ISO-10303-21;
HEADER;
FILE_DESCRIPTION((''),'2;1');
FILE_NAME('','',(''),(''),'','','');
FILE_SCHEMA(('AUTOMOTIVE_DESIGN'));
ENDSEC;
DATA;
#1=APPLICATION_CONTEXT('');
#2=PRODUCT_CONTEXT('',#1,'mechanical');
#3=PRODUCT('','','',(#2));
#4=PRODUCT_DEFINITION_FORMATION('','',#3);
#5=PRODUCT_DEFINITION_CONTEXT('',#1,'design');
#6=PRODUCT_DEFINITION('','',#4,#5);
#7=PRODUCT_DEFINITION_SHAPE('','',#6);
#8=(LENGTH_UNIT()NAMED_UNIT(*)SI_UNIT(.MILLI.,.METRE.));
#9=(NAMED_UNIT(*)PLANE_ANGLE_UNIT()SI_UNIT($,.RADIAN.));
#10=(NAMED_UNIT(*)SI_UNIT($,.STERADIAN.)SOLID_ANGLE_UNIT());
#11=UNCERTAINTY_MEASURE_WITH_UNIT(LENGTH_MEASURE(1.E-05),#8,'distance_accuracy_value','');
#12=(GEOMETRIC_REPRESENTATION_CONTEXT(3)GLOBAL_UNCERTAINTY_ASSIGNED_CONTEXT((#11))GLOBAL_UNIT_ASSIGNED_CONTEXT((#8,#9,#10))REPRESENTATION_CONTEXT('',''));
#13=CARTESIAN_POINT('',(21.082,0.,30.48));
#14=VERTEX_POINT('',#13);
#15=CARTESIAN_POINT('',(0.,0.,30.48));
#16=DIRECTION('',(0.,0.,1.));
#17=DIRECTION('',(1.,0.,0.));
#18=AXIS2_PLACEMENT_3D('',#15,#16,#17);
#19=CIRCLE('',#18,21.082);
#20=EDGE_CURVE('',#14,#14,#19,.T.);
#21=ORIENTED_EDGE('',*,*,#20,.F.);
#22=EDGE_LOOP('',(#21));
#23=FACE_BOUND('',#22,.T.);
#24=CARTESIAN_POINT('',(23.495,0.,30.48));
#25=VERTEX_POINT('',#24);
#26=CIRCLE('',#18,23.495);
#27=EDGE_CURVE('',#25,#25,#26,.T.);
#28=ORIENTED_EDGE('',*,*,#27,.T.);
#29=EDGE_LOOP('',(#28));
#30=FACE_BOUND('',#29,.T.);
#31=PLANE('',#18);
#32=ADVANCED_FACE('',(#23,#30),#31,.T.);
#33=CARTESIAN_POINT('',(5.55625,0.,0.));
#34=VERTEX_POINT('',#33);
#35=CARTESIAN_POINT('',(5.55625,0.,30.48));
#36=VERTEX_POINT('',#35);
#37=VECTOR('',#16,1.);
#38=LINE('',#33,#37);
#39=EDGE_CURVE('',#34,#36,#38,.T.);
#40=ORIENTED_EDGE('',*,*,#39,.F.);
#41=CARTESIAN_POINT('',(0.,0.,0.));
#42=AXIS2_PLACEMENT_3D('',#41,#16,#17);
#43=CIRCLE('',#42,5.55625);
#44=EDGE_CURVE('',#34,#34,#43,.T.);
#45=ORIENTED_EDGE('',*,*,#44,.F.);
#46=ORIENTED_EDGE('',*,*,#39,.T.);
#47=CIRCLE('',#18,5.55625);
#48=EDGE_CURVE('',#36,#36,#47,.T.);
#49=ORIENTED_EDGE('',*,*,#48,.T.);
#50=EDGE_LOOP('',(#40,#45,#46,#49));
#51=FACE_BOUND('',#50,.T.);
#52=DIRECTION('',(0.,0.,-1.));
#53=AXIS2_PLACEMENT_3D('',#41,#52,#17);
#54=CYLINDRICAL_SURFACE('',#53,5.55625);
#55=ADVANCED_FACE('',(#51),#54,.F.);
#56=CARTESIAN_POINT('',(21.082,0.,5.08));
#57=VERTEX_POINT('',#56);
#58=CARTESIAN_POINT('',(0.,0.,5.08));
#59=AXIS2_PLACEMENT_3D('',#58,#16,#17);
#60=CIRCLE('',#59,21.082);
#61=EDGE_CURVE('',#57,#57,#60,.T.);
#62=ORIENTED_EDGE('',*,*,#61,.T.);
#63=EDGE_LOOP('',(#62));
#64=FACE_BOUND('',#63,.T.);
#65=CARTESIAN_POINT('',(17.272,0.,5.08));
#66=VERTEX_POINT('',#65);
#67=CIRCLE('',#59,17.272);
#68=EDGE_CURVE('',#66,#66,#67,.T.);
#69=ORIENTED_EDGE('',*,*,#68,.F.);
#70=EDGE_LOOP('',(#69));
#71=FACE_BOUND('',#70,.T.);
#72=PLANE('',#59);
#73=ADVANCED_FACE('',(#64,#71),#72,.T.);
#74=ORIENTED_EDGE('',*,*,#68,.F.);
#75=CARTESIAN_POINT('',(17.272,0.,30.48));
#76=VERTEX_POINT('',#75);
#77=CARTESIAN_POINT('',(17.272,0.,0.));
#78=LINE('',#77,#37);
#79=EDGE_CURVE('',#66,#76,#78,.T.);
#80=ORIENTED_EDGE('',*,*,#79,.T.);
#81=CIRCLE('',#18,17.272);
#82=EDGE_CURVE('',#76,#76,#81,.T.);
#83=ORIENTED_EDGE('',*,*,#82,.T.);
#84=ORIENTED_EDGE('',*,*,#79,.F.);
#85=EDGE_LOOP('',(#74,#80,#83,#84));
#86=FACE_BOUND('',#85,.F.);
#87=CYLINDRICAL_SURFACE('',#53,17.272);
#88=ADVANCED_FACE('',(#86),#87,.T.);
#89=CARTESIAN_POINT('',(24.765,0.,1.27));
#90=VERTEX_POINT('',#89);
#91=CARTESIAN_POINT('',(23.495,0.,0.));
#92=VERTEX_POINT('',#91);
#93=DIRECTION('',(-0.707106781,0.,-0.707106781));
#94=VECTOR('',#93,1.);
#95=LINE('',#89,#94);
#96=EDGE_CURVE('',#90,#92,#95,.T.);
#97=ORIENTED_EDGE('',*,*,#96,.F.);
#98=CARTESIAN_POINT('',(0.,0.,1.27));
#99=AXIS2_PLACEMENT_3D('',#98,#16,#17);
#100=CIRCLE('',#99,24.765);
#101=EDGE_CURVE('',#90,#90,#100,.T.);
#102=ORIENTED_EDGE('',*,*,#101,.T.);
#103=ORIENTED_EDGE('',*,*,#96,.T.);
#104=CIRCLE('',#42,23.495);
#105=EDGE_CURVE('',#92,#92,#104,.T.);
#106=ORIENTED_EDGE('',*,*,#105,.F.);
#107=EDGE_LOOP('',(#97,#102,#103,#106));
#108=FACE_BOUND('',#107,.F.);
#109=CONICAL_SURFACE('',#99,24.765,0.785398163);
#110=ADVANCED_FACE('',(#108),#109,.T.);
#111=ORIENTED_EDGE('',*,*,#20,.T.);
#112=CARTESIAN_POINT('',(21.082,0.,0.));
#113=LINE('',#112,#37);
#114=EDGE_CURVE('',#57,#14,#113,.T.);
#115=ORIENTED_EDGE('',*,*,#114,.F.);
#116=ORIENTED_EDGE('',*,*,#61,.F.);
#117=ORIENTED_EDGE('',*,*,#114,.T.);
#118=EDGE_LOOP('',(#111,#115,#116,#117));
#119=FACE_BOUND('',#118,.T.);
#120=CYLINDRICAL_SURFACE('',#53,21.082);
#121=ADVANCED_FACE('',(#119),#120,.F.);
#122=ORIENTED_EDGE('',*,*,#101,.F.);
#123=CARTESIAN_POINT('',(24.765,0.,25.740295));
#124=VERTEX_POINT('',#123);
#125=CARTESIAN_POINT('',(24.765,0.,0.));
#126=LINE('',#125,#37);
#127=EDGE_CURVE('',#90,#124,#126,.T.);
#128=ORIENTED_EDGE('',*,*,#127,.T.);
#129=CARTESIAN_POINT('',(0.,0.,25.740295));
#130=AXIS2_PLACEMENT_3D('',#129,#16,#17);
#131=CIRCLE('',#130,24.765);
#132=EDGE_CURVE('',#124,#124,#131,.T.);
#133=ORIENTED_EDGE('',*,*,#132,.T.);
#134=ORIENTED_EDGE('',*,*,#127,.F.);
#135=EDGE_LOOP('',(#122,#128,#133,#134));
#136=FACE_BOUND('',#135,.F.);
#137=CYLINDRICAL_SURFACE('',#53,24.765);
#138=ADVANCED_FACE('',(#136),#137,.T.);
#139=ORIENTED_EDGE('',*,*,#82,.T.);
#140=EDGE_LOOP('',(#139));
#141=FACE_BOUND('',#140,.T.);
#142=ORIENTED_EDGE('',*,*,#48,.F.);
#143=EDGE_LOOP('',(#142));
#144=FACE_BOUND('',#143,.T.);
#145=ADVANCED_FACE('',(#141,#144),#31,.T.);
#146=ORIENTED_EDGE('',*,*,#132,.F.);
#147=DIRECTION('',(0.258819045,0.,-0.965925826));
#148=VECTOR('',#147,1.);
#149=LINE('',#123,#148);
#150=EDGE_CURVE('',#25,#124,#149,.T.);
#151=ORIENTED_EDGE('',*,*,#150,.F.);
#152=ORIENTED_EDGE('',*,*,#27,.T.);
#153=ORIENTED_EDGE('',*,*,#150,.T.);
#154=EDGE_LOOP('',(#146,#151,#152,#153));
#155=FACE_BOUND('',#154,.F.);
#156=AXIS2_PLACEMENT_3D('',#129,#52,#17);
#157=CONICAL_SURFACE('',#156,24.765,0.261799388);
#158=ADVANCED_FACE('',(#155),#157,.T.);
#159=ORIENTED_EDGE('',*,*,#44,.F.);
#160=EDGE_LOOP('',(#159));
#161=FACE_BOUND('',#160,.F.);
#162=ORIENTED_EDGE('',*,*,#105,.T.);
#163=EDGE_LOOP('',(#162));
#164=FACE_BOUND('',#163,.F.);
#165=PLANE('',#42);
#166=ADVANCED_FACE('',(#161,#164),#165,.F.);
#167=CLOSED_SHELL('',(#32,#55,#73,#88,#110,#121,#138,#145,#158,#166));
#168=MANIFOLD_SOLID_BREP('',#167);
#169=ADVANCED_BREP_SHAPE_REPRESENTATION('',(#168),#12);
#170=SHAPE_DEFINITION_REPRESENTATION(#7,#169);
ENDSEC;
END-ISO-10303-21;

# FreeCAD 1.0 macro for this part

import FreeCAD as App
import Part
import Sketcher

V = App.Vector
Q = App.Units.Quantity


def edges_at(feature, points):
    """Names of the edges that pass closest to the given points."""
    edges = feature.Shape.Edges
    near = lambda p: min(range(len(edges)), key=lambda i: edges[i].distToShape(Part.Vertex(*p))[0])
    return sorted({f"Edge{near(p) + 1}" for p in points})

doc = App.newDocument("Part")
params = doc.addObject("Spreadsheet::Sheet", "Params")
for row, (alias, value) in enumerate([
    ("sketch1_diameter", "1.95 in"),
    ("sketch1_diameter2", "1.66 in"),
    ("pad1_length", "1.2 in"),
    ("sketch2_diameter", "1.36 in"),
    ("sketch2_diameter2", "0.4375 in"),
    ("pad2_length", "1.2 in"),
    ("sketch3_diameter", "1.66 in"),
    ("sketch3_diameter2", "1.36 in"),
    ("pad3_length", "0.2 in"),
    ("chamfer_size", "0.05 in"),
    ("chamfer_size2", "4.739705 mm"),
    ("chamfer2_size", "0.05 in"),
], start=1):
    params.set(f"A{row}", alias)
    params.set(f"B{row}", "=" + value)
    params.setAlias(f"B{row}", alias)

body = doc.addObject("PartDesign::Body", "Body")

sketch1 = body.newObject("Sketcher::SketchObject", "Sketch")
sketch1.AttachmentSupport = (doc.getObject("XY_Plane"), [""])
sketch1.MapMode = "FlatFace"
sketch1.addGeometry(Part.Circle(V(0, 0, 0), V(0, 0, 1), 25), False)
sketch1.addGeometry(Part.Circle(V(0, 0, 0), V(0, 0, 1), 21), False)
sketch1.addConstraint(Sketcher.Constraint("Coincident", 0, 3, -1, 1))
sketch1.addConstraint(Sketcher.Constraint("Coincident", 1, 3, -1, 1))
sketch1.addConstraint(Sketcher.Constraint("Diameter", 0, Q("1.95 in")))
sketch1.addConstraint(Sketcher.Constraint("Diameter", 1, Q("1.66 in")))
sketch1.setExpression("Constraints[2]", "Params.sketch1_diameter")
sketch1.setExpression("Constraints[3]", "Params.sketch1_diameter2")
pad1 = body.newObject("PartDesign::Pad", "Pad")
pad1.Profile = sketch1
pad1.setExpression("Length", "Params.pad1_length")
body2 = doc.addObject("PartDesign::Body", "Body001")

sketch2 = body2.newObject("Sketcher::SketchObject", "Sketch001")
sketch2.AttachmentSupport = (doc.getObject("XY_Plane001"), [""])
sketch2.MapMode = "FlatFace"
sketch2.addGeometry(Part.Circle(V(0, 0, 0), V(0, 0, 1), 17), False)
sketch2.addGeometry(Part.Circle(V(0, 0, 0), V(0, 0, 1), 6), False)
sketch2.addConstraint(Sketcher.Constraint("Coincident", 0, 3, -1, 1))
sketch2.addConstraint(Sketcher.Constraint("Coincident", 1, 3, -1, 1))
sketch2.addConstraint(Sketcher.Constraint("Diameter", 0, Q("1.36 in")))
sketch2.addConstraint(Sketcher.Constraint("Diameter", 1, Q("0.4375 in")))
sketch2.setExpression("Constraints[2]", "Params.sketch2_diameter")
sketch2.setExpression("Constraints[3]", "Params.sketch2_diameter2")
pad2 = body2.newObject("PartDesign::Pad", "Pad001")
pad2.Profile = sketch2
pad2.setExpression("Length", "Params.pad2_length")
body.AllowCompound = True
doc.recompute()

boolean = body.newObject("PartDesign::Boolean", "Boolean")
boolean.Type = "Fuse"
boolean.addObjects([body2])

sketch3 = body.newObject("Sketcher::SketchObject", "Sketch002")
sketch3.AttachmentSupport = (doc.getObject("XY_Plane"), [""])
sketch3.MapMode = "FlatFace"
sketch3.addGeometry(Part.Circle(V(0, 0, 0), V(0, 0, 1), 21), False)
sketch3.addGeometry(Part.Circle(V(0, 0, 0), V(0, 0, 1), 17), False)
sketch3.addConstraint(Sketcher.Constraint("Coincident", 0, 3, -1, 1))
sketch3.addConstraint(Sketcher.Constraint("Coincident", 1, 3, -1, 1))
sketch3.addConstraint(Sketcher.Constraint("Diameter", 0, Q("1.66 in")))
sketch3.addConstraint(Sketcher.Constraint("Diameter", 1, Q("1.36 in")))
sketch3.setExpression("Constraints[2]", "Params.sketch3_diameter")
sketch3.setExpression("Constraints[3]", "Params.sketch3_diameter2")
pad3 = body.newObject("PartDesign::Pad", "Pad002")
pad3.Profile = sketch3
pad3.setExpression("Length", "Params.pad3_length")
doc.recompute()

chamfer = body.newObject("PartDesign::Chamfer", "Chamfer")
chamfer.Base = (pad3, edges_at(pad3, [(-24.765, 0, 30.48)]))
chamfer.ChamferType = "Two distances"
chamfer.setExpression("Size", "Params.chamfer_size")
chamfer.setExpression("Size2", "Params.chamfer_size2")
chamfer.FlipDirection = True
doc.recompute()

chamfer2 = body.newObject("PartDesign::Chamfer", "Chamfer001")
chamfer2.Base = (chamfer, edges_at(chamfer, [(-24.765, 0, 0)]))
chamfer2.setExpression("Size", "Params.chamfer2_size")

doc.recompute()
